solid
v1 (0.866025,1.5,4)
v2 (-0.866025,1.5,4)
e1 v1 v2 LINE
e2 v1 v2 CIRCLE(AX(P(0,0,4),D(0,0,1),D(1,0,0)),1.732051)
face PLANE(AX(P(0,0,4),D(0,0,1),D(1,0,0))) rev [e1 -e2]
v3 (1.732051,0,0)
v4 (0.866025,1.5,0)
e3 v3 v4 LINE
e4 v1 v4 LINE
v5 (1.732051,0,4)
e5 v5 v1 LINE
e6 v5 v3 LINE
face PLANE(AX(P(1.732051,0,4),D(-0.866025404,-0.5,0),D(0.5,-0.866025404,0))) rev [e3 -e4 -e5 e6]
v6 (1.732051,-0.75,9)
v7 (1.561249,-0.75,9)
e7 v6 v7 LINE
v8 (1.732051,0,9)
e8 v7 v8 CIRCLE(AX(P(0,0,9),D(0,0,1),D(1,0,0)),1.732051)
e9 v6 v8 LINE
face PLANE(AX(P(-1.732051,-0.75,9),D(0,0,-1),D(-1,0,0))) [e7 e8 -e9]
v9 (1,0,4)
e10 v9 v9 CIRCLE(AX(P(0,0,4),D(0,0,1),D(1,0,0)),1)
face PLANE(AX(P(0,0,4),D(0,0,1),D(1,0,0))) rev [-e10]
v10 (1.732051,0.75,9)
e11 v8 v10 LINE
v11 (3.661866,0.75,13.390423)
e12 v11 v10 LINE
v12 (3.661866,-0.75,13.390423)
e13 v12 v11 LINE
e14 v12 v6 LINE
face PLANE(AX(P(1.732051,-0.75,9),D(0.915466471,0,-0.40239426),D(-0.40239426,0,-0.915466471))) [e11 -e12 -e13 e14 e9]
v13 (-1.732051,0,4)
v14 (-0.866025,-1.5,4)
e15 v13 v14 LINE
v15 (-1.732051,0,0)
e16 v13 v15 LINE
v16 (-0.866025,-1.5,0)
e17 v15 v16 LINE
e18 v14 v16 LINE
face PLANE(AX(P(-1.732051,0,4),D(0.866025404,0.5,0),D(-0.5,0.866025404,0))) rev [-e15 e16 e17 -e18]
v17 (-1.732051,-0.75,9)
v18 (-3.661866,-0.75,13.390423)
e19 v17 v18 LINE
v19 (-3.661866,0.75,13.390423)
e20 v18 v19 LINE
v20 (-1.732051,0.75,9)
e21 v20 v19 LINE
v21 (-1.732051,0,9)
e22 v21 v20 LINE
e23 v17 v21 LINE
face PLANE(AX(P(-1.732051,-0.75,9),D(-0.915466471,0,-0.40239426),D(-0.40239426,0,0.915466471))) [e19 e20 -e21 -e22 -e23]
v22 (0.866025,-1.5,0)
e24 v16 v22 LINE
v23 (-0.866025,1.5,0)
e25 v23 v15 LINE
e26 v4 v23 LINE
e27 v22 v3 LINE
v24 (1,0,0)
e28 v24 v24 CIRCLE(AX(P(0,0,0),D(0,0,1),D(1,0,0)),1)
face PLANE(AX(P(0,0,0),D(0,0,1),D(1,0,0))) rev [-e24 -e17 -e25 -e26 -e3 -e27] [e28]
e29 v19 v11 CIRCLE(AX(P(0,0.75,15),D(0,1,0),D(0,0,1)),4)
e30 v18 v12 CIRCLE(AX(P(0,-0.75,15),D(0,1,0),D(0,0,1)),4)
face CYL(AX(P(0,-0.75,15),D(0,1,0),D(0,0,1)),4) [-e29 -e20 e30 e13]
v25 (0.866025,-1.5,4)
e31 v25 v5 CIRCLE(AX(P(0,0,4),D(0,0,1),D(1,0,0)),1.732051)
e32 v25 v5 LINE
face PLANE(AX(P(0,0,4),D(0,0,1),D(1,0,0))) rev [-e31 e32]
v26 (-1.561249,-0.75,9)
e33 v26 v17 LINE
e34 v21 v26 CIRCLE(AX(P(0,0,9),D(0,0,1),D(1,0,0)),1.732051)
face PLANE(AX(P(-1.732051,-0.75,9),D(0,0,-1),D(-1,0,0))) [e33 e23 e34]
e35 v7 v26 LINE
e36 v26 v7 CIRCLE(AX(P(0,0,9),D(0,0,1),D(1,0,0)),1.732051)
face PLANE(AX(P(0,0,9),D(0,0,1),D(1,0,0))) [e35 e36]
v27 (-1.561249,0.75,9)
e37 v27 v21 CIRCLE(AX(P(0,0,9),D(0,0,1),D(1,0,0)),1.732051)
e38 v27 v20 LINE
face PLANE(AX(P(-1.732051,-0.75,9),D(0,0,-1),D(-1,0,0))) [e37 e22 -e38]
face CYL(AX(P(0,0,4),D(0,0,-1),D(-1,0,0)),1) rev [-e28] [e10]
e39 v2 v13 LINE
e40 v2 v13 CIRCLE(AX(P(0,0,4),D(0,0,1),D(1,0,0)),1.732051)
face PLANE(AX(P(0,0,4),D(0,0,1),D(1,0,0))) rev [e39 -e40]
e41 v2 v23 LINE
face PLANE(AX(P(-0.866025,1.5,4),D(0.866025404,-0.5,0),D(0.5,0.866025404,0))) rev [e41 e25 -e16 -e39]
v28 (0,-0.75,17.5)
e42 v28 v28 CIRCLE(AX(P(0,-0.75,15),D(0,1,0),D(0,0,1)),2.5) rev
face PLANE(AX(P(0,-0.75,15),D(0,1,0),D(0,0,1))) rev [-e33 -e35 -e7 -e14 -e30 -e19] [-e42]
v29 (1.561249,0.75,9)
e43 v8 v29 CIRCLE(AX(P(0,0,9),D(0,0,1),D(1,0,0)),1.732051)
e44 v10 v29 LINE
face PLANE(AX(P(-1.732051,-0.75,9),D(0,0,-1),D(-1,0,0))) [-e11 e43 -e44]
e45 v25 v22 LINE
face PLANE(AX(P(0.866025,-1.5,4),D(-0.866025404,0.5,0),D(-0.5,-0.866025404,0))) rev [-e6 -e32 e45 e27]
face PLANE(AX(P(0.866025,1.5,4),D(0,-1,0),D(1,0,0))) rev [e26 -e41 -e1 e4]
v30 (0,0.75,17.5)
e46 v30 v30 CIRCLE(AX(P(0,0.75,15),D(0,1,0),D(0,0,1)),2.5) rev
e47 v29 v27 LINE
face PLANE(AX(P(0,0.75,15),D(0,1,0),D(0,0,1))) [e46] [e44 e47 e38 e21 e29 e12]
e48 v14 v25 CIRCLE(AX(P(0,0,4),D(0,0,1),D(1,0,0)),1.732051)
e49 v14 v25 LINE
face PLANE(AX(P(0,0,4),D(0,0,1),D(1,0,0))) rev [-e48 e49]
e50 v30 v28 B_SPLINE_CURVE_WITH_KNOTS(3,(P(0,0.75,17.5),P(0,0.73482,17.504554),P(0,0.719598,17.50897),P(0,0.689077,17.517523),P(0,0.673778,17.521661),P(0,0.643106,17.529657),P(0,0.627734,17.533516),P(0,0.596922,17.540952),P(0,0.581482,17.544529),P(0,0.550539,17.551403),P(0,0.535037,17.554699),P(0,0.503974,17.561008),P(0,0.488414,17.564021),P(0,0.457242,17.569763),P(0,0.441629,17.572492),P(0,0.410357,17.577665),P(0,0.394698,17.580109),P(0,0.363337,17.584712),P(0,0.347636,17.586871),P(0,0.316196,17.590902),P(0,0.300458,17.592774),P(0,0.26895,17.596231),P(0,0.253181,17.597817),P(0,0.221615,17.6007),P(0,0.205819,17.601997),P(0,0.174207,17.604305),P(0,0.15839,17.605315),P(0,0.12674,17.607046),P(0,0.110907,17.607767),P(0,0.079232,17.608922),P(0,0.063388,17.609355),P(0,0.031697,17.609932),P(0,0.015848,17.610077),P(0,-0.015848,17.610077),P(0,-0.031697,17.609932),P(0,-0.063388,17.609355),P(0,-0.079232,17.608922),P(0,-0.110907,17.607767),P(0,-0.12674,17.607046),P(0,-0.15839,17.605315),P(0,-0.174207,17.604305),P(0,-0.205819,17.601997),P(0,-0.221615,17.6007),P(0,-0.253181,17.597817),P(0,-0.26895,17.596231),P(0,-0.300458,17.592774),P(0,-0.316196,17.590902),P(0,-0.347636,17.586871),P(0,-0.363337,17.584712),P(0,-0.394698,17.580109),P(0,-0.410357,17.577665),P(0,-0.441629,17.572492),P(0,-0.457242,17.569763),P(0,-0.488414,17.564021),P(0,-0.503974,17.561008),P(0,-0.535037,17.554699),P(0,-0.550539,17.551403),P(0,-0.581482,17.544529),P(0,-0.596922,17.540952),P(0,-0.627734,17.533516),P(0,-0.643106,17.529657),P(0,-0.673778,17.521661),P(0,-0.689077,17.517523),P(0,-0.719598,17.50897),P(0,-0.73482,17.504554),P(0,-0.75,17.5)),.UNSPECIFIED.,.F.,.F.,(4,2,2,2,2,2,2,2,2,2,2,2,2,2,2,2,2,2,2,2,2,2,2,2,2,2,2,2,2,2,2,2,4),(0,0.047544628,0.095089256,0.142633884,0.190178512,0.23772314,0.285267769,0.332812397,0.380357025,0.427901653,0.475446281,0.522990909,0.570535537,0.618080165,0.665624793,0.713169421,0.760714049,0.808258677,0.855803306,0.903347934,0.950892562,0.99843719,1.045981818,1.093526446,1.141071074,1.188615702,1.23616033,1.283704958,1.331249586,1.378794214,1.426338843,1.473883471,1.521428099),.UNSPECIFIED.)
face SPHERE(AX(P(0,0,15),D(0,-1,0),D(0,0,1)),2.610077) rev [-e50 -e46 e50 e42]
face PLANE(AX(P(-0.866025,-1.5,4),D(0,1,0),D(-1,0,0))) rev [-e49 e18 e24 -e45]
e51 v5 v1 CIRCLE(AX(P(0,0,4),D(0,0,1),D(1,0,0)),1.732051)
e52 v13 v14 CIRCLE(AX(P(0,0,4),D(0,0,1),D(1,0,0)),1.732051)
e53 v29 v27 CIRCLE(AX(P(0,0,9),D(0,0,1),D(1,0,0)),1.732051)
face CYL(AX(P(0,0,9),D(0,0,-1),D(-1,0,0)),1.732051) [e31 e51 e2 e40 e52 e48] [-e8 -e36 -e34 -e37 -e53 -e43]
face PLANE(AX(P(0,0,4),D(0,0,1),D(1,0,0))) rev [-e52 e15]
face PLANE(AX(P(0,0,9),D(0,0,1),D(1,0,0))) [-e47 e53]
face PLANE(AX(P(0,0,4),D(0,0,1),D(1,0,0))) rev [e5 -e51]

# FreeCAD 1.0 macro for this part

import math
import FreeCAD as App
import Part
import Sketcher

V = App.Vector
Q = App.Units.Quantity


def add_polygon(sketch, points):
    """Adds a closed chain of lines whose ends are joined by coincident constraints."""
    first, n = sketch.GeometryCount, len(points)
    for a, b in zip(points, points[1:] + points[:1]):
        sketch.addGeometry(Part.LineSegment(App.Vector(*a, 0), App.Vector(*b, 0)), False)
    for i in range(n):
        sketch.addConstraint(Sketcher.Constraint("Coincident", first + i, 2, first + (i + 1) % n, 1))

doc = App.newDocument("Part")
body = doc.addObject("PartDesign::Body", "Body")

sketch1 = body.newObject("Sketcher::SketchObject", "Sketch")
sketch1.AttachmentSupport = (doc.getObject("XY_Plane"), [""])
sketch1.MapMode = "FlatFace"
add_polygon(sketch1, [(0.866025, 1.5), (-0.866025, 1.5), (-1.732051, 0), (-0.866025, -1.5), (0.866025, -1.5), (1.732051, 0)])
sketch1.addGeometry(Part.Circle(V(0, 0, 0), V(0, 0, 1), 1), False)
sketch1.addConstraint(Sketcher.Constraint("Horizontal", 0))
sketch1.addConstraint(Sketcher.Constraint("Horizontal", 3))
sketch1.addConstraint(Sketcher.Constraint("Coincident", 6, 3, -1, 1))
sketch1.addConstraint(Sketcher.Constraint("Symmetric", 0, 2, 3, 2, -1, 1))
sketch1.addConstraint(Sketcher.Constraint("Symmetric", 1, 2, 4, 2, -1, 1))
sketch1.addConstraint(Sketcher.Constraint("PointOnObject", 1, 2, -1))
sketch1.addConstraint(Sketcher.Constraint("Parallel", 2, 5))
sketch1.addConstraint(Sketcher.Constraint("Vertical", 0, 2, 2, 2))
sketch1.addConstraint(Sketcher.Constraint("Diameter", 6, 2.0))
sketch1.addConstraint(Sketcher.Constraint("Angle", 1, Q("-120 deg")))
sketch1.addConstraint(Sketcher.Constraint("DistanceY", 2, 2, 0, 2, 3.0))
sketch1.addConstraint(Sketcher.Constraint("DistanceX", 0, 2, 0, 1, 1.732051))
pad1 = body.newObject("PartDesign::Pad", "Pad")
pad1.Profile = sketch1
pad1.Length = 4

sketch2 = body.newObject("Sketcher::SketchObject", "Sketch001")
sketch2.AttachmentSupport = (doc.getObject("XY_Plane"), [""])
sketch2.MapMode = "FlatFace"
sketch2.AttachmentOffset = App.Placement(V(0, 0, 4), App.Rotation())
sketch2.addGeometry(Part.Circle(V(0, 0, 0), V(0, 0, 1), 1.732051), False)
sketch2.addConstraint(Sketcher.Constraint("Coincident", 0, 3, -1, 1))
sketch2.addConstraint(Sketcher.Constraint("Diameter", 0, 3.464102))
pad2 = body.newObject("PartDesign::Pad", "Pad001")
pad2.Profile = sketch2
pad2.Length = 5

sketch3 = body.newObject("Sketcher::SketchObject", "Sketch002")
sketch3.AttachmentSupport = (doc.getObject("XZ_Plane"), [""])
sketch3.MapMode = "FlatFace"
sketch3.addGeometry(Part.LineSegment(V(-1.732051, 9, 0), V(-3.661866, 13.390423, 0)), False)
sketch3.addGeometry(Part.ArcOfCircle(Part.Circle(V(0, 15, 0), V(0, 0, 1), 4), math.radians(-23.727941), math.radians(203.727941)), False)
sketch3.addGeometry(Part.LineSegment(V(3.661866, 13.390423, 0), V(1.732051, 9, 0)), False)
sketch3.addGeometry(Part.LineSegment(V(1.732051, 9, 0), V(-1.732051, 9, 0)), False)
sketch3.addGeometry(Part.Circle(V(0, 15, 0), V(0, 0, 1), 2.5), False)
sketch3.addConstraint(Sketcher.Constraint("Tangent", 0, 2, 1, 2))
sketch3.addConstraint(Sketcher.Constraint("Tangent", 1, 1, 2, 1))
sketch3.addConstraint(Sketcher.Constraint("Coincident", 2, 2, 3, 1))
sketch3.addConstraint(Sketcher.Constraint("Coincident", 3, 2, 0, 1))
sketch3.addConstraint(Sketcher.Constraint("Horizontal", 3))
sketch3.addConstraint(Sketcher.Constraint("Coincident", 4, 3, 1, 3))
sketch3.addConstraint(Sketcher.Constraint("Symmetric", 0, 2, 1, 1, -2))
sketch3.addConstraint(Sketcher.Constraint("Diameter", 4, 5.0))
sketch3.addConstraint(Sketcher.Constraint("Radius", 1, 4.0))
sketch3.addConstraint(Sketcher.Constraint("DistanceY", -1, 1, 1, 3, 15.0))
sketch3.addConstraint(Sketcher.Constraint("DistanceY", -1, 1, 2, 2, 9.0))
sketch3.addConstraint(Sketcher.Constraint("DistanceX", 3, 2, 3, 1, 3.464102))
pad3 = body.newObject("PartDesign::Pad", "Pad002")
pad3.Profile = sketch3
pad3.Type = "TwoLengths"
pad3.Length = 0.75
pad3.Length2 = 0.75
pad3.Reversed = True

sketch4 = body.newObject("Sketcher::SketchObject", "Sketch003")
sketch4.AttachmentSupport = (doc.getObject("YZ_Plane"), [""])
sketch4.MapMode = "FlatFace"
sketch4.addGeometry(Part.LineSegment(V(-2.610077, 15, 0), V(2.610077, 15, 0)), False)
sketch4.addGeometry(Part.ArcOfCircle(Part.Circle(V(0, 15, 0), V(0, 0, 1), 2.610077), math.radians(0), math.radians(180)), False)
sketch4.addGeometry(Part.LineSegment(V(-2.610077, 15, 0), V(2.610077, 15, 0)), True)
sketch4.addConstraint(Sketcher.Constraint("Coincident", 0, 1, 1, 2))
sketch4.addConstraint(Sketcher.Constraint("Coincident", 1, 1, 0, 2))
sketch4.addConstraint(Sketcher.Constraint("Horizontal", 0))
sketch4.addConstraint(Sketcher.Constraint("Horizontal", 2))
sketch4.addConstraint(Sketcher.Constraint("Coincident", 2, 1, 0, 1))
sketch4.addConstraint(Sketcher.Constraint("PointOnObject", 1, 3, -2))
sketch4.addConstraint(Sketcher.Constraint("Horizontal", 1, 3, 0, 1))
sketch4.addConstraint(Sketcher.Constraint("Equal", 0, 2))
sketch4.addConstraint(Sketcher.Constraint("DistanceY", -1, 1, 1, 3, 15.0))
sketch4.addConstraint(Sketcher.Constraint("Radius", 1, 2.610077))
groove = body.newObject("PartDesign::Groove", "Groove")
groove.Profile = sketch4
groove.ReferenceAxis = (sketch4, ["Axis0"])
groove.Angle = 360

doc.recompute()
